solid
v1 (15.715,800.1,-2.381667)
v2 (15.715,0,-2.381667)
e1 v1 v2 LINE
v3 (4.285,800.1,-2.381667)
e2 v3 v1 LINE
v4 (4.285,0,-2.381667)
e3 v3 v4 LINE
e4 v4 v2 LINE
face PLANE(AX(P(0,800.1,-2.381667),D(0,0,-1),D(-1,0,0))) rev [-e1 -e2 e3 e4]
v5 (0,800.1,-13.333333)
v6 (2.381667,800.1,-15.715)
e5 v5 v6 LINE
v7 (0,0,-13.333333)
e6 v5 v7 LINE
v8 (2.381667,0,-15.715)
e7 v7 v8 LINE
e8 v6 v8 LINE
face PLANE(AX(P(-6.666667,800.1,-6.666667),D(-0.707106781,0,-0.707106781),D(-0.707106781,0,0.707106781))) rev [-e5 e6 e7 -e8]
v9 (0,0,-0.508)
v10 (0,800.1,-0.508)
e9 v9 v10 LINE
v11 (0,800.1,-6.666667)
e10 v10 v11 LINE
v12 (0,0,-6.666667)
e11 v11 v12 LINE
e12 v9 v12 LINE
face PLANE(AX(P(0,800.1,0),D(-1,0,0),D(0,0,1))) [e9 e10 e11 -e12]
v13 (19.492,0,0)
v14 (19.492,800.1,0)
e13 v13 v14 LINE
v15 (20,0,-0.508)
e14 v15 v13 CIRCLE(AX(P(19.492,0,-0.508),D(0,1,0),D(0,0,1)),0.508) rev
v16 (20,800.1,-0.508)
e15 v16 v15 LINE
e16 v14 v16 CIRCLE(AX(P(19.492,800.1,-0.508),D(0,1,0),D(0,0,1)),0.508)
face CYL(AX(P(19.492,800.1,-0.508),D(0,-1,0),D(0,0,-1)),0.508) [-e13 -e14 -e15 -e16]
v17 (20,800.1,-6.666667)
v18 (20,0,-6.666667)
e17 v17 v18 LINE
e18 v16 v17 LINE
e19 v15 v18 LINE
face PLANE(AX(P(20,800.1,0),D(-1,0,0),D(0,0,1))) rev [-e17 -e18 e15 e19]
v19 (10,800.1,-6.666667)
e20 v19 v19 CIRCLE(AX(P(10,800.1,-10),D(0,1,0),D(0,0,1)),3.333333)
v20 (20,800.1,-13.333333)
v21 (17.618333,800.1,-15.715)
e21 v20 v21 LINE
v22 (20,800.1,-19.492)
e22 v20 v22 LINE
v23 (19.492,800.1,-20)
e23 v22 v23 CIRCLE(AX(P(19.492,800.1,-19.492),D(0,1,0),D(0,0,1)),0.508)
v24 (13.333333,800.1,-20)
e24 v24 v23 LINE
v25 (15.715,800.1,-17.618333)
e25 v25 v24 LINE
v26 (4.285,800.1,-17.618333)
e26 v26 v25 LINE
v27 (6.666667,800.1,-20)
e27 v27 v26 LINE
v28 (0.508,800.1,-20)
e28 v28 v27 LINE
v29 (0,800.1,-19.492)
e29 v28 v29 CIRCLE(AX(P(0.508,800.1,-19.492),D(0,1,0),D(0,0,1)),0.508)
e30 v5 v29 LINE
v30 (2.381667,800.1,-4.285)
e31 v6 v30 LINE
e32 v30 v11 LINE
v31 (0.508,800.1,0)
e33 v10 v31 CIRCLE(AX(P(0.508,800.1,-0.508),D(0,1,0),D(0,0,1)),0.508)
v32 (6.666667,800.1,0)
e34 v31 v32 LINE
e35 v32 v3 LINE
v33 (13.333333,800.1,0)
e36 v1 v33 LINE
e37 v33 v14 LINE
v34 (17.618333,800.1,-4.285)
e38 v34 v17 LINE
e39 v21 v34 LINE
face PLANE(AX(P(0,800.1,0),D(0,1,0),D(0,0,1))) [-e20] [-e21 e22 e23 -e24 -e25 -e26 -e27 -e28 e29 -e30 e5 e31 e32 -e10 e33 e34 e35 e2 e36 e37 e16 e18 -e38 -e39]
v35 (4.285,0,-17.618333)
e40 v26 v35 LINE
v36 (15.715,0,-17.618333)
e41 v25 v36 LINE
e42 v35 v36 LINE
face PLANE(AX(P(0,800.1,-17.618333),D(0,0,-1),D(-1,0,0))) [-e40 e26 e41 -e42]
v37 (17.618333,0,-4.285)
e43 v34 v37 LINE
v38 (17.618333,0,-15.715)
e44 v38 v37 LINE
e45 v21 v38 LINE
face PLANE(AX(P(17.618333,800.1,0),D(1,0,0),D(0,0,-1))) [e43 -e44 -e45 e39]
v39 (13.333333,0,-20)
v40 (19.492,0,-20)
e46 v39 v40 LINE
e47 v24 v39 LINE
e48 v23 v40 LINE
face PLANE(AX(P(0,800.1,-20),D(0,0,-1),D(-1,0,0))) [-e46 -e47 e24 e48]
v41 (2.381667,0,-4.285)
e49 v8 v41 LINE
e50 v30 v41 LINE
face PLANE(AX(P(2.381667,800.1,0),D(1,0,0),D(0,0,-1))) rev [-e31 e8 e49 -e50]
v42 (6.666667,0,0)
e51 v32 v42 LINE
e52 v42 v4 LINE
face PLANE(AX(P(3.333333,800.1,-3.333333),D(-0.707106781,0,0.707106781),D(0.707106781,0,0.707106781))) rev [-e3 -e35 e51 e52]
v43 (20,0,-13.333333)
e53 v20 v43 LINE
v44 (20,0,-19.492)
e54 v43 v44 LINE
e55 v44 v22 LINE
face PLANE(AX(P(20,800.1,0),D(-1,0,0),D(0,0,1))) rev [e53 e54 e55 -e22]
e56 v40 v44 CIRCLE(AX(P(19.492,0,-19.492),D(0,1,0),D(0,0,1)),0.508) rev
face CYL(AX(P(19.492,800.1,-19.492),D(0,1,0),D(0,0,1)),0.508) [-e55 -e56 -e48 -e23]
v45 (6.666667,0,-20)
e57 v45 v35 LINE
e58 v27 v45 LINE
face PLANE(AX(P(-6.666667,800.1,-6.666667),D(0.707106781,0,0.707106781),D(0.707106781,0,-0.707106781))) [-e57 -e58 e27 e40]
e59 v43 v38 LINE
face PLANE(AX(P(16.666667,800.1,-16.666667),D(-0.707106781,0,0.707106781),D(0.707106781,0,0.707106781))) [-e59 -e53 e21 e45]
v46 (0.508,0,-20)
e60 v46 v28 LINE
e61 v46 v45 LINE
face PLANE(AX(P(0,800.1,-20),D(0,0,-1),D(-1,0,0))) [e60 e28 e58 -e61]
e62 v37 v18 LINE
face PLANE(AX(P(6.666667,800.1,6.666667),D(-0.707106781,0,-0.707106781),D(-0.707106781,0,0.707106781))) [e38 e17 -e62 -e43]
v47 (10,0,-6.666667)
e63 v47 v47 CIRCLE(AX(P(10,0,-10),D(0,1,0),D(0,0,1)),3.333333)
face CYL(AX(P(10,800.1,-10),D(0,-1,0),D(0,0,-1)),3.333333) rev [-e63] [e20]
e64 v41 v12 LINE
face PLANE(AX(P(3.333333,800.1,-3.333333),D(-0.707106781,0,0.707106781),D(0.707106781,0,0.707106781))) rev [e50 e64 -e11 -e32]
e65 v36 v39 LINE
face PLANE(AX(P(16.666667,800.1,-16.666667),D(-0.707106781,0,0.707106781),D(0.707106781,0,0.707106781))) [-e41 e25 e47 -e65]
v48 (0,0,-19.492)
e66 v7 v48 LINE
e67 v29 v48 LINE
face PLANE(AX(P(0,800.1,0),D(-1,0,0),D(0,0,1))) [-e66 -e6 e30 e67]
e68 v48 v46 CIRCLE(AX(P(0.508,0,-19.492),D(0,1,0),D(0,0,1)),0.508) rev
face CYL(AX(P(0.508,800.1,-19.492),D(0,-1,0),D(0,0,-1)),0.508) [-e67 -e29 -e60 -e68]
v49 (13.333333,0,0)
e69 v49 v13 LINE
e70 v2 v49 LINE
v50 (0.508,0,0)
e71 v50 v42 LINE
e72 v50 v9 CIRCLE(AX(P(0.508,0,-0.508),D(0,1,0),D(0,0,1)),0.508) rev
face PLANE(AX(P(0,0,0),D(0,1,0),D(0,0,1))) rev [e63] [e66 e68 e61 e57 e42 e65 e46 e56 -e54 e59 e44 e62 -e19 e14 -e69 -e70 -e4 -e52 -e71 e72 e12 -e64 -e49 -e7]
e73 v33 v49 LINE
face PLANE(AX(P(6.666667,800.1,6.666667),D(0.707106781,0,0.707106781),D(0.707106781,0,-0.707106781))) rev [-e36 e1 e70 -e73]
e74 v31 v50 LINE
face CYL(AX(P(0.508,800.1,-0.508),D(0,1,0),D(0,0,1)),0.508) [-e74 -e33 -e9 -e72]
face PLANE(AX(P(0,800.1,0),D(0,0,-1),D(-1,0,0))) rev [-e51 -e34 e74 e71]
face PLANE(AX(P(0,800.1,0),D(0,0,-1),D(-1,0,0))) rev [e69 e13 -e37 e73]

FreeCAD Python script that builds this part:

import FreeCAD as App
import Part
import Sketcher

V = App.Vector
Q = App.Units.Quantity


def edges_at(feature, points):
    """Names of the edges that pass closest to the given points."""
    edges = feature.Shape.Edges
    near = lambda p: min(range(len(edges)), key=lambda i: edges[i].distToShape(Part.Vertex(*p))[0])
    return sorted({f"Edge{near(p) + 1}" for p in points})


def add_polygon(sketch, points):
    """Adds a closed chain of lines whose ends are joined by coincident constraints."""
    first, n = sketch.GeometryCount, len(points)
    for a, b in zip(points, points[1:] + points[:1]):
        sketch.addGeometry(Part.LineSegment(App.Vector(*a, 0), App.Vector(*b, 0)), False)
    for i in range(n):
        sketch.addConstraint(Sketcher.Constraint("Coincident", first + i, 2, first + (i + 1) % n, 1))

doc = App.newDocument("Part")
params = doc.addObject("Spreadsheet::Sheet", "Params")
for row, (alias, value) in enumerate([
    ("sketch1_width", "0.45 in"),
    ("pad1_length", "31.5 in"),
    ("fillet_radius", "0.02 in"),
], start=1):
    params.set(f"A{row}", alias)
    params.set(f"B{row}", "=" + value)
    params.setAlias(f"B{row}", alias)

body = doc.addObject("PartDesign::Body", "Body")

sketch1 = doc.addObject("Sketcher::SketchObject", "Sketch")
body.addObject(sketch1)
sketch1.AttachmentSupport = (doc.XZ_Plane, [""])
sketch1.MapMode = "FlatFace"
add_polygon(sketch1, [(4.3, -17.6), (6.7, -20), (0, -20), (0, -13.3), (2.4, -15.7), (2.4, -4.3), (0, -6.7), (0, 0), (6.7, 0), (4.3, -2.4), (15.7, -2.4), (13.3, 0), (20, 0), (20, -6.7), (17.6, -4.3), (17.6, -15.7), (20, -13.3), (20, -20), (13.3, -20), (15.7, -17.6)])
sketch1.addGeometry(Part.Circle(V(10, -10, 0), V(0, 0, 1), 3.3), False)
sketch1.addConstraint([
    Sketcher.Constraint("Horizontal", 1),
    Sketcher.Constraint("Vertical", 2),
    Sketcher.Constraint("Vertical", 4),
    Sketcher.Constraint("Vertical", 6),
    Sketcher.Constraint("Horizontal", 7),
    Sketcher.Constraint("Horizontal", 9),
    Sketcher.Constraint("Horizontal", 11),
    Sketcher.Constraint("Vertical", 12),
    Sketcher.Constraint("Vertical", 14),
    Sketcher.Constraint("Vertical", 16),
    Sketcher.Constraint("Horizontal", 17),
    Sketcher.Constraint("Horizontal", 19),
    Sketcher.Constraint("Coincident", 6, 2, -1, 1),
    Sketcher.Constraint("PointOnObject", 1, 2, -2),
    Sketcher.Constraint("PointOnObject", 10, 2, -1),
    Sketcher.Constraint("Parallel", 0, 3),
    Sketcher.Constraint("Perpendicular", 3, 5),
    Sketcher.Constraint("Parallel", 5, 8),
    Sketcher.Constraint("Perpendicular", 8, 10),
    Sketcher.Constraint("Parallel", 10, 13),
    Sketcher.Constraint("Perpendicular", 13, 15),
    Sketcher.Constraint("Parallel", 15, 18),
    Sketcher.Constraint("Horizontal", 5, 2, 12, 2),
    Sketcher.Constraint("Horizontal", 4, 2, 13, 2),
    Sketcher.Constraint("Horizontal", 3, 2, 14, 2),
    Sketcher.Constraint("Horizontal", 2, 2, 15, 2),
    Sketcher.Constraint("Horizontal", 1, 2, 16, 2),
    Sketcher.Constraint("Vertical", 0, 2, 7, 2),
    Sketcher.Constraint("Vertical", 12, 2, 15, 2),
    Sketcher.Constraint("Vertical", 10, 2, 17, 2),
    Sketcher.Constraint("Vertical", 9, 2, 18, 2),
    Sketcher.Constraint("Equal", 7, 11),
    Sketcher.Constraint("Equal", 17, 2),
    Sketcher.Constraint("Equal", 19, 4),
    Sketcher.Constraint("Equal", 2, 6),
    Sketcher.Constraint("Equal", 0, 3),
    Sketcher.Constraint("DistanceX", 9, 1, 9, 2, Q("0.45 in")),
    Sketcher.Constraint("DistanceY", 3, 2, 20, 3, Q("0.225 in")),
    Sketcher.Constraint("DistanceX", 8, 2, 20, 3, Q("0.225 in")),
    Sketcher.Constraint("Diameter", 20, Q("6.666667 mm")),
    Sketcher.Constraint("DistanceX", -1, 1, 20, 3, Q("10 mm")),
    Sketcher.Constraint("DistanceX", 1, 2, 1, 1, Q("6.666667 mm")),
])
sketch1.setExpression("Constraints[56]", "Params.sketch1_width")
pad1 = doc.addObject("PartDesign::Pad", "Pad")
body.addObject(pad1)
pad1.Profile = sketch1
pad1.setExpression("Length", "Params.pad1_length")
pad1.Reversed = True
doc.recompute()

fillet = doc.addObject("PartDesign::Fillet", "Fillet")
body.addObject(fillet)
fillet.Base = (pad1, edges_at(pad1, [
    (20, 400.05, 0),
    (0, 400.05, 0),
    (0, 400.05, -20),
    (20, 400.05, -20),
]))
fillet.setExpression("Radius", "Params.fillet_radius")

doc.recompute()
